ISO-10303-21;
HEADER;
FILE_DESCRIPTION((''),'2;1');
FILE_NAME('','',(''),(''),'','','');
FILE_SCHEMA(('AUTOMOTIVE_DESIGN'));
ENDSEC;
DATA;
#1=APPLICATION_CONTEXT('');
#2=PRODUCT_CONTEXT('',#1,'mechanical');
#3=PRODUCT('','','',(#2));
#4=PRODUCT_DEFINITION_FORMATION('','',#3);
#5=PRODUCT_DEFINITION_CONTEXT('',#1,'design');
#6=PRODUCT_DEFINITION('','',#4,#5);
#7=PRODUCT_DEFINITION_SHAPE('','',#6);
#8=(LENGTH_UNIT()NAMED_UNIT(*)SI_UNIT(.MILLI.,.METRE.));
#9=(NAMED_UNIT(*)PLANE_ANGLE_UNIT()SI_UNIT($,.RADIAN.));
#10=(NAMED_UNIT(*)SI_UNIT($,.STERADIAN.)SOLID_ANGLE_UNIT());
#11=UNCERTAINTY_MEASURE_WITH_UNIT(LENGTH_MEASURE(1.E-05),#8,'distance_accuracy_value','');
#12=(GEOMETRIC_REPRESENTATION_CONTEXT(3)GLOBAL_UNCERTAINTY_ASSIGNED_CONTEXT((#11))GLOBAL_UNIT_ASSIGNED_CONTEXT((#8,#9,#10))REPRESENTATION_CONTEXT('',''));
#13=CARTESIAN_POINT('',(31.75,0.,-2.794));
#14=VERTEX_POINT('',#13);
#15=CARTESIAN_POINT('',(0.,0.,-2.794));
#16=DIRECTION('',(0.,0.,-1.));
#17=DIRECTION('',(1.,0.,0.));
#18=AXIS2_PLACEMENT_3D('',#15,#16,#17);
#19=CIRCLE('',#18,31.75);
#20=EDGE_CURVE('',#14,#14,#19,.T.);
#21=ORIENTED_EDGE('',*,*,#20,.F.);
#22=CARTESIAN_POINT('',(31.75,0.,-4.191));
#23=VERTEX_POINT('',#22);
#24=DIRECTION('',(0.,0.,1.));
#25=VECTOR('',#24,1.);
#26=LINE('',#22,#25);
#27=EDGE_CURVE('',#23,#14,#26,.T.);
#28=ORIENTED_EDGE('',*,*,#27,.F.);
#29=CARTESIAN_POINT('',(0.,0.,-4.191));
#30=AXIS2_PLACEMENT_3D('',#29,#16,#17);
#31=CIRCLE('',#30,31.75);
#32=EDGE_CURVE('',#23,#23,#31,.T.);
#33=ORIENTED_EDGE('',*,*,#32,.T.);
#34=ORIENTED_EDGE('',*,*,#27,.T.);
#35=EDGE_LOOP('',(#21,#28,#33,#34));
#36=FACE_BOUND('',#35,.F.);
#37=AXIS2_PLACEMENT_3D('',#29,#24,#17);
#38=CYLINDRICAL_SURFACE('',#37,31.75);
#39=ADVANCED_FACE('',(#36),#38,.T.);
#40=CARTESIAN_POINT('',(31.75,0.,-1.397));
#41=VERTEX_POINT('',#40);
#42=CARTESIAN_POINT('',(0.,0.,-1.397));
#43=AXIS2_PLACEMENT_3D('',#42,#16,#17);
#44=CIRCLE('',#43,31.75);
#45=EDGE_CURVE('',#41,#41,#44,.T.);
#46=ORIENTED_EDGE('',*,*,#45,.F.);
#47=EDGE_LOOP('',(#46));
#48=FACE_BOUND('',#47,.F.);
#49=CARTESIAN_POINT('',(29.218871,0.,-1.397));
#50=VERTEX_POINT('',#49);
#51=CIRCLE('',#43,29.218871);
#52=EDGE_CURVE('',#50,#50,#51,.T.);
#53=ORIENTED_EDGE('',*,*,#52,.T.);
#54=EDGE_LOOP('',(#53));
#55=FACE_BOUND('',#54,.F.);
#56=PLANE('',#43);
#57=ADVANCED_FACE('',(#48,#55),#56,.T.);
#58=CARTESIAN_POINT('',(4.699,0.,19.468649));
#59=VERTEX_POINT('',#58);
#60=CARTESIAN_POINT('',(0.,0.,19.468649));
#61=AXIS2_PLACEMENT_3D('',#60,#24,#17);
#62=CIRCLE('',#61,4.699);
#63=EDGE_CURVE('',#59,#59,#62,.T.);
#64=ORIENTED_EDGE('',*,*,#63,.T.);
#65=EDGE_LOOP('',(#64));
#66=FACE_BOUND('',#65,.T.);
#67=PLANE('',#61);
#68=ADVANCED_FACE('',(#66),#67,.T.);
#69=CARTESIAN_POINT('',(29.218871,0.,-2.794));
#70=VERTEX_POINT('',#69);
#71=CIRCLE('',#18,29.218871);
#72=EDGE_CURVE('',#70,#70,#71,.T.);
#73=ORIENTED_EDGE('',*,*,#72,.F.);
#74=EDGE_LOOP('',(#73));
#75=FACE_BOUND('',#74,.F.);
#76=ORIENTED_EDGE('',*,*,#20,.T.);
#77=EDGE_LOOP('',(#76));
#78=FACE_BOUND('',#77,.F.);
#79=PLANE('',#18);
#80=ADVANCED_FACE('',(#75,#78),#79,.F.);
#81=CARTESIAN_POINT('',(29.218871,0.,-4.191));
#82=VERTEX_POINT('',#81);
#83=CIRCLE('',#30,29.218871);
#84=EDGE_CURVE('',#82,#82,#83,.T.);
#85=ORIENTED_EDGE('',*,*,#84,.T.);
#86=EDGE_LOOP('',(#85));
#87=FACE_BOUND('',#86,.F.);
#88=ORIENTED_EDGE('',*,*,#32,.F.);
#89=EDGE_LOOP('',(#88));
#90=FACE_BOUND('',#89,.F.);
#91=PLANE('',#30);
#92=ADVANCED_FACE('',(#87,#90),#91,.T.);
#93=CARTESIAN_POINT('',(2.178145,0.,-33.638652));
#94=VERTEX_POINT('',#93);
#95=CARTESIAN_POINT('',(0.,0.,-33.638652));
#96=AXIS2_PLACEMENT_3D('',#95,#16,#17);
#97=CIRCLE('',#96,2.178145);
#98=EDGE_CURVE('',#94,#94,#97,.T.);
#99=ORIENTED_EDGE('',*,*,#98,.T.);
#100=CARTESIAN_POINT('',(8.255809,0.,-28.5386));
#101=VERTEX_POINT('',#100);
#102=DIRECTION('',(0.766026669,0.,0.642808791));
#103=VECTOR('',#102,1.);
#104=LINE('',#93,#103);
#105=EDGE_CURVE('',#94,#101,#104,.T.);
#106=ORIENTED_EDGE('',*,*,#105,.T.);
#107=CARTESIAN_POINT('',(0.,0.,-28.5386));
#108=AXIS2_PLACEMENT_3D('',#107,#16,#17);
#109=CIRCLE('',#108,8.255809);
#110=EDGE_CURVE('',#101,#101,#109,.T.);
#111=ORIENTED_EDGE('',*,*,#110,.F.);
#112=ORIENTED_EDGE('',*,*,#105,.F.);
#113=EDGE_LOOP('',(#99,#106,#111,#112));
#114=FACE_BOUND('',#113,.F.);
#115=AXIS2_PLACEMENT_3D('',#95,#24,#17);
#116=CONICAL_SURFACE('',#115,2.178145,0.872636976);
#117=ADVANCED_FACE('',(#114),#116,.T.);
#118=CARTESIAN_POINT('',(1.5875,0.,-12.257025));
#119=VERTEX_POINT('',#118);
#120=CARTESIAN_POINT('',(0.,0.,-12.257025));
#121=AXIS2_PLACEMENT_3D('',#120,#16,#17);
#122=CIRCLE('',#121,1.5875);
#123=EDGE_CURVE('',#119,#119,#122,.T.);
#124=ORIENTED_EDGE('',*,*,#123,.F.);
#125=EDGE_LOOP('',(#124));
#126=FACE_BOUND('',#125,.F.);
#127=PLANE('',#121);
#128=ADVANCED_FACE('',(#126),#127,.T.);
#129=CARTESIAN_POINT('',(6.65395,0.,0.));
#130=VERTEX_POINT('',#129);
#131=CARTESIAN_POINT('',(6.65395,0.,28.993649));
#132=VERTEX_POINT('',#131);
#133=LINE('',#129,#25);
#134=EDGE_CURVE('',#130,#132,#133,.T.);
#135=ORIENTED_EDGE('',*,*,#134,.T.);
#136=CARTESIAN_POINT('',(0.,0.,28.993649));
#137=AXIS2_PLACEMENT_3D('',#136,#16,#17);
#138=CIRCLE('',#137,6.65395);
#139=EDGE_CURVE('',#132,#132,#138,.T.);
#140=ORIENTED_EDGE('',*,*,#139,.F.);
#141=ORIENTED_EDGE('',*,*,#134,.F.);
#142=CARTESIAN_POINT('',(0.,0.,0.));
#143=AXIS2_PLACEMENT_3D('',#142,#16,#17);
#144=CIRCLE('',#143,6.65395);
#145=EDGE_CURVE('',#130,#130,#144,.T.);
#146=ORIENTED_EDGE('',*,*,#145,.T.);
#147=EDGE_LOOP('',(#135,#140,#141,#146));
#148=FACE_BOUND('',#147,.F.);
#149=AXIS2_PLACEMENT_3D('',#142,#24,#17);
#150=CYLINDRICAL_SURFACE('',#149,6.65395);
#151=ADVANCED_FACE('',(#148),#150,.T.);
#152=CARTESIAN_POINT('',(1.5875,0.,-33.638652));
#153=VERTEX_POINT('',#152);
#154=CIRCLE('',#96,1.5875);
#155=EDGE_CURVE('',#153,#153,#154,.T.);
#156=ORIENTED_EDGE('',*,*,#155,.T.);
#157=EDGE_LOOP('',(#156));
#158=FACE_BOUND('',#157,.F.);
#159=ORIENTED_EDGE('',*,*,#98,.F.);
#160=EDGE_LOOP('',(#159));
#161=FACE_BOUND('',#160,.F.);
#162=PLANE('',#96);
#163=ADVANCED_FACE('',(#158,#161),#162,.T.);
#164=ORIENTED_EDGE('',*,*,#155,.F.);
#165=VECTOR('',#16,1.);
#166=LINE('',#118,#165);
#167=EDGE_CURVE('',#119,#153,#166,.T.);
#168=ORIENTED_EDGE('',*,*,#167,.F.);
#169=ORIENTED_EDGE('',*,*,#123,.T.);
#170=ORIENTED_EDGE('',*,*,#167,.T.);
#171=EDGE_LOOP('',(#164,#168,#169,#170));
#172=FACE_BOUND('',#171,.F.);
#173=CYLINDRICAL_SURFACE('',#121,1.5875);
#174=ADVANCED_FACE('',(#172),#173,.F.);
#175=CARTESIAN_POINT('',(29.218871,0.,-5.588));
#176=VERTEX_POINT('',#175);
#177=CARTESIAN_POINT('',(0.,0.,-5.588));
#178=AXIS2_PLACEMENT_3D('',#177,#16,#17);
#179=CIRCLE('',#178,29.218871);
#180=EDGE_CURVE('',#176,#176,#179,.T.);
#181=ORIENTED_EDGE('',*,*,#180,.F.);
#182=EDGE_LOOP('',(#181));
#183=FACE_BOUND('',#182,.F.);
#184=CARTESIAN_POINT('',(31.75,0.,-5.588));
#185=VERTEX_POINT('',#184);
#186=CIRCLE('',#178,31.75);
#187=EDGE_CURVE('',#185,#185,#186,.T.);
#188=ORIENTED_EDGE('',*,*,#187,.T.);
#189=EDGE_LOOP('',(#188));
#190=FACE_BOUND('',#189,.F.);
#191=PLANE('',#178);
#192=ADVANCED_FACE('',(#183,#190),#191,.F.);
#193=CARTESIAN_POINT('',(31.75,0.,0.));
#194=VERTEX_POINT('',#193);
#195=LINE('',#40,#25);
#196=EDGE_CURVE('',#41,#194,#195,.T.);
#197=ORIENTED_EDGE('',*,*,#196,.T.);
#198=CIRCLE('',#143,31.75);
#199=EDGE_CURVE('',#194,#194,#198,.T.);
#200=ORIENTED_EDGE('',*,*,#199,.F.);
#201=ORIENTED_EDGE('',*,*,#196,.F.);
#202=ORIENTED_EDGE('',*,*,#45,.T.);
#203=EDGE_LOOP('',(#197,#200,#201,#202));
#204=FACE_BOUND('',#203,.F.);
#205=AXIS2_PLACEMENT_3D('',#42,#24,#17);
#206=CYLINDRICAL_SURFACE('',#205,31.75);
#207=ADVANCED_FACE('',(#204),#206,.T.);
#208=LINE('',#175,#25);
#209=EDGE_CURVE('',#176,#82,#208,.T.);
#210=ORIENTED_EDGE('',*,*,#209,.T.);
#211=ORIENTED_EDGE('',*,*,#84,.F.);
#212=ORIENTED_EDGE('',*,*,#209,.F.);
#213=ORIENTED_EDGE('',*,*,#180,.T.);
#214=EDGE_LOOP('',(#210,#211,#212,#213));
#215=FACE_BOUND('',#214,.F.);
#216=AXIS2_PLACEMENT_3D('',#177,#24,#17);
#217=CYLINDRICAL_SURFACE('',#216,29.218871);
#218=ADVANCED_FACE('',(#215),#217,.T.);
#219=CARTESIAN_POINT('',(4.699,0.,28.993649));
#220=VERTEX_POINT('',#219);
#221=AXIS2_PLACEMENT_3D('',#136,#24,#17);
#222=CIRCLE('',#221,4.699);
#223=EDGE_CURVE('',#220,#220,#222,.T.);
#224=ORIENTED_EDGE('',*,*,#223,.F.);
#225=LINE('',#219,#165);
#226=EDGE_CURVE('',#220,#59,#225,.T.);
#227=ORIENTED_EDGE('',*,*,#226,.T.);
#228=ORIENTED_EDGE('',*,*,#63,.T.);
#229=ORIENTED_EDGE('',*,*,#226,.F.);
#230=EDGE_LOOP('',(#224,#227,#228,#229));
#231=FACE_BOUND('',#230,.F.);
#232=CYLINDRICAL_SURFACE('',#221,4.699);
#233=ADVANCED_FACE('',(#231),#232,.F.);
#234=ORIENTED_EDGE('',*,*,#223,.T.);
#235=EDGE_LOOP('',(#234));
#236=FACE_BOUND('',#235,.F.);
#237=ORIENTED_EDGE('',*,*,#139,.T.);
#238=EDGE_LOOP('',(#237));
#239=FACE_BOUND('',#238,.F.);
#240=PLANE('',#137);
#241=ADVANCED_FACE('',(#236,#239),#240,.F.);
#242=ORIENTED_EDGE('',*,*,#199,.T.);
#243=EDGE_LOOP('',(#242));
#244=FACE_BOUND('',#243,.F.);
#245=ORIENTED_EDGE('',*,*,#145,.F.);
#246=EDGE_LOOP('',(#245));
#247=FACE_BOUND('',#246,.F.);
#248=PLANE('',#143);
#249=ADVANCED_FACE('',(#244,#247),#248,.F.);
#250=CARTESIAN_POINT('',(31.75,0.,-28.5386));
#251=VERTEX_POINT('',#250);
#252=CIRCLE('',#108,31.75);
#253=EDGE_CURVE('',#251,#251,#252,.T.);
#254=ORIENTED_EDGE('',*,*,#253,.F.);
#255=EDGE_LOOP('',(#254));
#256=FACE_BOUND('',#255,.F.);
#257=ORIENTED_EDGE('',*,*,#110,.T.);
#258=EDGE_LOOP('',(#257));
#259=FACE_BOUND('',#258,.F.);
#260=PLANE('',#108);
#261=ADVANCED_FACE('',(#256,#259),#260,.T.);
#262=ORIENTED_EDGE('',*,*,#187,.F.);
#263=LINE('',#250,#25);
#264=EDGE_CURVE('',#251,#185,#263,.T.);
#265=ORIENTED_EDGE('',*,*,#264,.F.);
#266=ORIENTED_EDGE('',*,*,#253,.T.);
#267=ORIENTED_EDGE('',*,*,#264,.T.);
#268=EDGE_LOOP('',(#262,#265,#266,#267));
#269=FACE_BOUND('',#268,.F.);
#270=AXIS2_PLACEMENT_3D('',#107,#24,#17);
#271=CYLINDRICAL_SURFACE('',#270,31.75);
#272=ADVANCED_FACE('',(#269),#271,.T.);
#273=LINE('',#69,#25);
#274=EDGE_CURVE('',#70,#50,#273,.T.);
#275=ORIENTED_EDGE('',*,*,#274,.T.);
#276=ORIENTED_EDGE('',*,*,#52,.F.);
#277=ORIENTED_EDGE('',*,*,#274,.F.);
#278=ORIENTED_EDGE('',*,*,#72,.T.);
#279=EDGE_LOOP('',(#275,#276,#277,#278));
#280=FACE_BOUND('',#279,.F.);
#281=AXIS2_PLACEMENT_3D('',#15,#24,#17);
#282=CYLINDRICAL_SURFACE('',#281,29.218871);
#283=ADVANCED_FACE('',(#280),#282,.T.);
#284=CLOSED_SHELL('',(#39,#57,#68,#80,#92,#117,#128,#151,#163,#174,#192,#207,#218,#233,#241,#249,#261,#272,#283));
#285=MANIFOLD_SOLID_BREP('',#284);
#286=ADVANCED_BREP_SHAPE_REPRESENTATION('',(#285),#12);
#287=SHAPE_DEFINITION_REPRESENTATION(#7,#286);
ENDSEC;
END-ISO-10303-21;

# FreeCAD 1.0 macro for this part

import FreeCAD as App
import Part
import Sketcher

V = App.Vector
Q = App.Units.Quantity

doc = App.newDocument("Part")
body = doc.addObject("PartDesign::Body", "Body")

sketch1 = doc.addObject("Sketcher::SketchObject", "Sketch")
body.addObject(sketch1)
sketch1.AttachmentSupport = (doc.XZ_Plane, [""])
sketch1.MapMode = "FlatFace"
sketch1.addGeometry(Part.LineSegment(V(6.7, 29, 0), V(0, 29, 0)), False)
sketch1.addGeometry(Part.LineSegment(V(0, 29, 0), V(0, -12.3, 0)), False)
sketch1.addGeometry(Part.LineSegment(V(0, -12.3, 0), V(1.6, -12.3, 0)), False)
sketch1.addGeometry(Part.LineSegment(V(1.6, -12.3, 0), V(1.6, -33.6, 0)), False)
sketch1.addGeometry(Part.LineSegment(V(1.6, -33.6, 0), V(2.2, -33.6, 0)), False)
sketch1.addGeometry(Part.LineSegment(V(2.2, -33.6, 0), V(8.3, -28.5, 0)), False)
sketch1.addGeometry(Part.LineSegment(V(8.3, -28.5, 0), V(31.8, -28.5, 0)), False)
sketch1.addGeometry(Part.LineSegment(V(31.8, -28.5, 0), V(31.8, -5.6, 0)), False)
sketch1.addGeometry(Part.LineSegment(V(31.8, -5.6, 0), V(29.2, -5.6, 0)), False)
sketch1.addGeometry(Part.LineSegment(V(29.2, -5.6, 0), V(29.2, -4.2, 0)), False)
sketch1.addGeometry(Part.LineSegment(V(29.2, -4.2, 0), V(31.8, -4.2, 0)), False)
sketch1.addGeometry(Part.LineSegment(V(31.8, -4.2, 0), V(31.8, -2.8, 0)), False)
sketch1.addGeometry(Part.LineSegment(V(31.8, -2.8, 0), V(29.2, -2.8, 0)), False)
sketch1.addGeometry(Part.LineSegment(V(29.2, -2.8, 0), V(29.2, -1.4, 0)), False)
sketch1.addGeometry(Part.LineSegment(V(29.2, -1.4, 0), V(31.8, -1.4, 0)), False)
sketch1.addGeometry(Part.LineSegment(V(31.8, -1.4, 0), V(31.8, 0, 0)), False)
sketch1.addGeometry(Part.LineSegment(V(31.8, 0, 0), V(6.7, 0, 0)), False)
sketch1.addGeometry(Part.LineSegment(V(6.7, 0, 0), V(6.7, 29, 0)), False)
sketch1.addConstraint(Sketcher.Constraint("Coincident", 0, 2, 1, 1))
sketch1.addConstraint(Sketcher.Constraint("Coincident", 1, 2, 2, 1))
sketch1.addConstraint(Sketcher.Constraint("Coincident", 2, 2, 3, 1))
sketch1.addConstraint(Sketcher.Constraint("Coincident", 3, 2, 4, 1))
sketch1.addConstraint(Sketcher.Constraint("Coincident", 4, 2, 5, 1))
sketch1.addConstraint(Sketcher.Constraint("Coincident", 5, 2, 6, 1))
sketch1.addConstraint(Sketcher.Constraint("Coincident", 6, 2, 7, 1))
sketch1.addConstraint(Sketcher.Constraint("Coincident", 7, 2, 8, 1))
sketch1.addConstraint(Sketcher.Constraint("Coincident", 8, 2, 9, 1))
sketch1.addConstraint(Sketcher.Constraint("Coincident", 9, 2, 10, 1))
sketch1.addConstraint(Sketcher.Constraint("Coincident", 10, 2, 11, 1))
sketch1.addConstraint(Sketcher.Constraint("Coincident", 11, 2, 12, 1))
sketch1.addConstraint(Sketcher.Constraint("Coincident", 12, 2, 13, 1))
sketch1.addConstraint(Sketcher.Constraint("Coincident", 13, 2, 14, 1))
sketch1.addConstraint(Sketcher.Constraint("Coincident", 14, 2, 15, 1))
sketch1.addConstraint(Sketcher.Constraint("Coincident", 15, 2, 16, 1))
sketch1.addConstraint(Sketcher.Constraint("Coincident", 16, 2, 17, 1))
sketch1.addConstraint(Sketcher.Constraint("Coincident", 17, 2, 0, 1))
sketch1.addConstraint(Sketcher.Constraint("Horizontal", 0))
sketch1.addConstraint(Sketcher.Constraint("Vertical", 1))
sketch1.addConstraint(Sketcher.Constraint("Horizontal", 2))
sketch1.addConstraint(Sketcher.Constraint("Vertical", 3))
sketch1.addConstraint(Sketcher.Constraint("Horizontal", 4))
sketch1.addConstraint(Sketcher.Constraint("Horizontal", 6))
sketch1.addConstraint(Sketcher.Constraint("Vertical", 7))
sketch1.addConstraint(Sketcher.Constraint("Horizontal", 8))
sketch1.addConstraint(Sketcher.Constraint("Vertical", 9))
sketch1.addConstraint(Sketcher.Constraint("Horizontal", 10))
sketch1.addConstraint(Sketcher.Constraint("Vertical", 11))
sketch1.addConstraint(Sketcher.Constraint("Horizontal", 12))
sketch1.addConstraint(Sketcher.Constraint("Vertical", 13))
sketch1.addConstraint(Sketcher.Constraint("Horizontal", 14))
sketch1.addConstraint(Sketcher.Constraint("Vertical", 15))
sketch1.addConstraint(Sketcher.Constraint("Horizontal", 16))
sketch1.addConstraint(Sketcher.Constraint("Vertical", 17))
sketch1.addConstraint(Sketcher.Constraint("PointOnObject", 0, 2, -2))
sketch1.addConstraint(Sketcher.Constraint("PointOnObject", 15, 2, -1))
sketch1.addConstraint(Sketcher.Constraint("Vertical", 7, 2, 10, 2))
sketch1.addConstraint(Sketcher.Constraint("Vertical", 9, 2, 12, 2))
sketch1.addConstraint(Sketcher.Constraint("Vertical", 11, 2, 14, 2))
sketch1.addConstraint(Sketcher.Constraint("Equal", 9, 11))
sketch1.addConstraint(Sketcher.Constraint("Equal", 11, 13))
sketch1.addConstraint(Sketcher.Constraint("Equal", 13, 15))
sketch1.addConstraint(Sketcher.Constraint("DistanceX", 2, 1, 2, 2, Q("0.0625 in")))
sketch1.addConstraint(Sketcher.Constraint("DistanceY", 9, 1, 9, 2, Q("0.055 in")))
sketch1.addConstraint(Sketcher.Constraint("DistanceX", -1, 1, 6, 2, Q("1.25 in")))
sketch1.addConstraint(Sketcher.Constraint("DistanceY", 7, 1, 7, 2, Q("22.9506 mm")))
sketch1.addConstraint(Sketcher.Constraint("DistanceX", 0, 2, 0, 1, Q("6.65395 mm")))
sketch1.addConstraint(Sketcher.Constraint("DistanceX", 6, 1, 6, 2, Q("23.494191 mm")))
sketch1.addConstraint(Sketcher.Constraint("DistanceX", 8, 2, 8, 1, Q("2.531129 mm")))
sketch1.addConstraint(Sketcher.Constraint("DistanceY", 17, 1, 17, 2, Q("28.993649 mm")))
sketch1.addConstraint(Sketcher.Constraint("DistanceY", 3, 2, 0, 2, Q("62.632301 mm")))
sketch1.addConstraint(Sketcher.Constraint("Distance", 5, Q("7.934011 mm")))
sketch1.addConstraint(Sketcher.Constraint("DistanceY", 1, 2, 1, 1, Q("41.250674 mm")))
revolution = doc.addObject("PartDesign::Revolution", "Revolution")
body.addObject(revolution)
revolution.Profile = sketch1
revolution.ReferenceAxis = (sketch1, ["V_Axis"])
revolution.Angle = 360

sketch2 = doc.addObject("Sketcher::SketchObject", "Sketch001")
body.addObject(sketch2)
sketch2.AttachmentSupport = (doc.XY_Plane, [""])
sketch2.MapMode = "FlatFace"
sketch2.AttachmentOffset = App.Placement(V(0, 0, 28.993649), App.Rotation())
sketch2.addGeometry(Part.Circle(V(0, 0, 0), V(0, 0, 1), 4.7), False)
sketch2.addConstraint(Sketcher.Constraint("Coincident", 0, 3, -1, 1))
sketch2.addConstraint(Sketcher.Constraint("Diameter", 0, Q("0.37 in")))
pocket1 = doc.addObject("PartDesign::Pocket", "Pocket")
body.addObject(pocket1)
pocket1.Profile = sketch2
pocket1.Length = Q("0.375 in")

doc.recompute()
